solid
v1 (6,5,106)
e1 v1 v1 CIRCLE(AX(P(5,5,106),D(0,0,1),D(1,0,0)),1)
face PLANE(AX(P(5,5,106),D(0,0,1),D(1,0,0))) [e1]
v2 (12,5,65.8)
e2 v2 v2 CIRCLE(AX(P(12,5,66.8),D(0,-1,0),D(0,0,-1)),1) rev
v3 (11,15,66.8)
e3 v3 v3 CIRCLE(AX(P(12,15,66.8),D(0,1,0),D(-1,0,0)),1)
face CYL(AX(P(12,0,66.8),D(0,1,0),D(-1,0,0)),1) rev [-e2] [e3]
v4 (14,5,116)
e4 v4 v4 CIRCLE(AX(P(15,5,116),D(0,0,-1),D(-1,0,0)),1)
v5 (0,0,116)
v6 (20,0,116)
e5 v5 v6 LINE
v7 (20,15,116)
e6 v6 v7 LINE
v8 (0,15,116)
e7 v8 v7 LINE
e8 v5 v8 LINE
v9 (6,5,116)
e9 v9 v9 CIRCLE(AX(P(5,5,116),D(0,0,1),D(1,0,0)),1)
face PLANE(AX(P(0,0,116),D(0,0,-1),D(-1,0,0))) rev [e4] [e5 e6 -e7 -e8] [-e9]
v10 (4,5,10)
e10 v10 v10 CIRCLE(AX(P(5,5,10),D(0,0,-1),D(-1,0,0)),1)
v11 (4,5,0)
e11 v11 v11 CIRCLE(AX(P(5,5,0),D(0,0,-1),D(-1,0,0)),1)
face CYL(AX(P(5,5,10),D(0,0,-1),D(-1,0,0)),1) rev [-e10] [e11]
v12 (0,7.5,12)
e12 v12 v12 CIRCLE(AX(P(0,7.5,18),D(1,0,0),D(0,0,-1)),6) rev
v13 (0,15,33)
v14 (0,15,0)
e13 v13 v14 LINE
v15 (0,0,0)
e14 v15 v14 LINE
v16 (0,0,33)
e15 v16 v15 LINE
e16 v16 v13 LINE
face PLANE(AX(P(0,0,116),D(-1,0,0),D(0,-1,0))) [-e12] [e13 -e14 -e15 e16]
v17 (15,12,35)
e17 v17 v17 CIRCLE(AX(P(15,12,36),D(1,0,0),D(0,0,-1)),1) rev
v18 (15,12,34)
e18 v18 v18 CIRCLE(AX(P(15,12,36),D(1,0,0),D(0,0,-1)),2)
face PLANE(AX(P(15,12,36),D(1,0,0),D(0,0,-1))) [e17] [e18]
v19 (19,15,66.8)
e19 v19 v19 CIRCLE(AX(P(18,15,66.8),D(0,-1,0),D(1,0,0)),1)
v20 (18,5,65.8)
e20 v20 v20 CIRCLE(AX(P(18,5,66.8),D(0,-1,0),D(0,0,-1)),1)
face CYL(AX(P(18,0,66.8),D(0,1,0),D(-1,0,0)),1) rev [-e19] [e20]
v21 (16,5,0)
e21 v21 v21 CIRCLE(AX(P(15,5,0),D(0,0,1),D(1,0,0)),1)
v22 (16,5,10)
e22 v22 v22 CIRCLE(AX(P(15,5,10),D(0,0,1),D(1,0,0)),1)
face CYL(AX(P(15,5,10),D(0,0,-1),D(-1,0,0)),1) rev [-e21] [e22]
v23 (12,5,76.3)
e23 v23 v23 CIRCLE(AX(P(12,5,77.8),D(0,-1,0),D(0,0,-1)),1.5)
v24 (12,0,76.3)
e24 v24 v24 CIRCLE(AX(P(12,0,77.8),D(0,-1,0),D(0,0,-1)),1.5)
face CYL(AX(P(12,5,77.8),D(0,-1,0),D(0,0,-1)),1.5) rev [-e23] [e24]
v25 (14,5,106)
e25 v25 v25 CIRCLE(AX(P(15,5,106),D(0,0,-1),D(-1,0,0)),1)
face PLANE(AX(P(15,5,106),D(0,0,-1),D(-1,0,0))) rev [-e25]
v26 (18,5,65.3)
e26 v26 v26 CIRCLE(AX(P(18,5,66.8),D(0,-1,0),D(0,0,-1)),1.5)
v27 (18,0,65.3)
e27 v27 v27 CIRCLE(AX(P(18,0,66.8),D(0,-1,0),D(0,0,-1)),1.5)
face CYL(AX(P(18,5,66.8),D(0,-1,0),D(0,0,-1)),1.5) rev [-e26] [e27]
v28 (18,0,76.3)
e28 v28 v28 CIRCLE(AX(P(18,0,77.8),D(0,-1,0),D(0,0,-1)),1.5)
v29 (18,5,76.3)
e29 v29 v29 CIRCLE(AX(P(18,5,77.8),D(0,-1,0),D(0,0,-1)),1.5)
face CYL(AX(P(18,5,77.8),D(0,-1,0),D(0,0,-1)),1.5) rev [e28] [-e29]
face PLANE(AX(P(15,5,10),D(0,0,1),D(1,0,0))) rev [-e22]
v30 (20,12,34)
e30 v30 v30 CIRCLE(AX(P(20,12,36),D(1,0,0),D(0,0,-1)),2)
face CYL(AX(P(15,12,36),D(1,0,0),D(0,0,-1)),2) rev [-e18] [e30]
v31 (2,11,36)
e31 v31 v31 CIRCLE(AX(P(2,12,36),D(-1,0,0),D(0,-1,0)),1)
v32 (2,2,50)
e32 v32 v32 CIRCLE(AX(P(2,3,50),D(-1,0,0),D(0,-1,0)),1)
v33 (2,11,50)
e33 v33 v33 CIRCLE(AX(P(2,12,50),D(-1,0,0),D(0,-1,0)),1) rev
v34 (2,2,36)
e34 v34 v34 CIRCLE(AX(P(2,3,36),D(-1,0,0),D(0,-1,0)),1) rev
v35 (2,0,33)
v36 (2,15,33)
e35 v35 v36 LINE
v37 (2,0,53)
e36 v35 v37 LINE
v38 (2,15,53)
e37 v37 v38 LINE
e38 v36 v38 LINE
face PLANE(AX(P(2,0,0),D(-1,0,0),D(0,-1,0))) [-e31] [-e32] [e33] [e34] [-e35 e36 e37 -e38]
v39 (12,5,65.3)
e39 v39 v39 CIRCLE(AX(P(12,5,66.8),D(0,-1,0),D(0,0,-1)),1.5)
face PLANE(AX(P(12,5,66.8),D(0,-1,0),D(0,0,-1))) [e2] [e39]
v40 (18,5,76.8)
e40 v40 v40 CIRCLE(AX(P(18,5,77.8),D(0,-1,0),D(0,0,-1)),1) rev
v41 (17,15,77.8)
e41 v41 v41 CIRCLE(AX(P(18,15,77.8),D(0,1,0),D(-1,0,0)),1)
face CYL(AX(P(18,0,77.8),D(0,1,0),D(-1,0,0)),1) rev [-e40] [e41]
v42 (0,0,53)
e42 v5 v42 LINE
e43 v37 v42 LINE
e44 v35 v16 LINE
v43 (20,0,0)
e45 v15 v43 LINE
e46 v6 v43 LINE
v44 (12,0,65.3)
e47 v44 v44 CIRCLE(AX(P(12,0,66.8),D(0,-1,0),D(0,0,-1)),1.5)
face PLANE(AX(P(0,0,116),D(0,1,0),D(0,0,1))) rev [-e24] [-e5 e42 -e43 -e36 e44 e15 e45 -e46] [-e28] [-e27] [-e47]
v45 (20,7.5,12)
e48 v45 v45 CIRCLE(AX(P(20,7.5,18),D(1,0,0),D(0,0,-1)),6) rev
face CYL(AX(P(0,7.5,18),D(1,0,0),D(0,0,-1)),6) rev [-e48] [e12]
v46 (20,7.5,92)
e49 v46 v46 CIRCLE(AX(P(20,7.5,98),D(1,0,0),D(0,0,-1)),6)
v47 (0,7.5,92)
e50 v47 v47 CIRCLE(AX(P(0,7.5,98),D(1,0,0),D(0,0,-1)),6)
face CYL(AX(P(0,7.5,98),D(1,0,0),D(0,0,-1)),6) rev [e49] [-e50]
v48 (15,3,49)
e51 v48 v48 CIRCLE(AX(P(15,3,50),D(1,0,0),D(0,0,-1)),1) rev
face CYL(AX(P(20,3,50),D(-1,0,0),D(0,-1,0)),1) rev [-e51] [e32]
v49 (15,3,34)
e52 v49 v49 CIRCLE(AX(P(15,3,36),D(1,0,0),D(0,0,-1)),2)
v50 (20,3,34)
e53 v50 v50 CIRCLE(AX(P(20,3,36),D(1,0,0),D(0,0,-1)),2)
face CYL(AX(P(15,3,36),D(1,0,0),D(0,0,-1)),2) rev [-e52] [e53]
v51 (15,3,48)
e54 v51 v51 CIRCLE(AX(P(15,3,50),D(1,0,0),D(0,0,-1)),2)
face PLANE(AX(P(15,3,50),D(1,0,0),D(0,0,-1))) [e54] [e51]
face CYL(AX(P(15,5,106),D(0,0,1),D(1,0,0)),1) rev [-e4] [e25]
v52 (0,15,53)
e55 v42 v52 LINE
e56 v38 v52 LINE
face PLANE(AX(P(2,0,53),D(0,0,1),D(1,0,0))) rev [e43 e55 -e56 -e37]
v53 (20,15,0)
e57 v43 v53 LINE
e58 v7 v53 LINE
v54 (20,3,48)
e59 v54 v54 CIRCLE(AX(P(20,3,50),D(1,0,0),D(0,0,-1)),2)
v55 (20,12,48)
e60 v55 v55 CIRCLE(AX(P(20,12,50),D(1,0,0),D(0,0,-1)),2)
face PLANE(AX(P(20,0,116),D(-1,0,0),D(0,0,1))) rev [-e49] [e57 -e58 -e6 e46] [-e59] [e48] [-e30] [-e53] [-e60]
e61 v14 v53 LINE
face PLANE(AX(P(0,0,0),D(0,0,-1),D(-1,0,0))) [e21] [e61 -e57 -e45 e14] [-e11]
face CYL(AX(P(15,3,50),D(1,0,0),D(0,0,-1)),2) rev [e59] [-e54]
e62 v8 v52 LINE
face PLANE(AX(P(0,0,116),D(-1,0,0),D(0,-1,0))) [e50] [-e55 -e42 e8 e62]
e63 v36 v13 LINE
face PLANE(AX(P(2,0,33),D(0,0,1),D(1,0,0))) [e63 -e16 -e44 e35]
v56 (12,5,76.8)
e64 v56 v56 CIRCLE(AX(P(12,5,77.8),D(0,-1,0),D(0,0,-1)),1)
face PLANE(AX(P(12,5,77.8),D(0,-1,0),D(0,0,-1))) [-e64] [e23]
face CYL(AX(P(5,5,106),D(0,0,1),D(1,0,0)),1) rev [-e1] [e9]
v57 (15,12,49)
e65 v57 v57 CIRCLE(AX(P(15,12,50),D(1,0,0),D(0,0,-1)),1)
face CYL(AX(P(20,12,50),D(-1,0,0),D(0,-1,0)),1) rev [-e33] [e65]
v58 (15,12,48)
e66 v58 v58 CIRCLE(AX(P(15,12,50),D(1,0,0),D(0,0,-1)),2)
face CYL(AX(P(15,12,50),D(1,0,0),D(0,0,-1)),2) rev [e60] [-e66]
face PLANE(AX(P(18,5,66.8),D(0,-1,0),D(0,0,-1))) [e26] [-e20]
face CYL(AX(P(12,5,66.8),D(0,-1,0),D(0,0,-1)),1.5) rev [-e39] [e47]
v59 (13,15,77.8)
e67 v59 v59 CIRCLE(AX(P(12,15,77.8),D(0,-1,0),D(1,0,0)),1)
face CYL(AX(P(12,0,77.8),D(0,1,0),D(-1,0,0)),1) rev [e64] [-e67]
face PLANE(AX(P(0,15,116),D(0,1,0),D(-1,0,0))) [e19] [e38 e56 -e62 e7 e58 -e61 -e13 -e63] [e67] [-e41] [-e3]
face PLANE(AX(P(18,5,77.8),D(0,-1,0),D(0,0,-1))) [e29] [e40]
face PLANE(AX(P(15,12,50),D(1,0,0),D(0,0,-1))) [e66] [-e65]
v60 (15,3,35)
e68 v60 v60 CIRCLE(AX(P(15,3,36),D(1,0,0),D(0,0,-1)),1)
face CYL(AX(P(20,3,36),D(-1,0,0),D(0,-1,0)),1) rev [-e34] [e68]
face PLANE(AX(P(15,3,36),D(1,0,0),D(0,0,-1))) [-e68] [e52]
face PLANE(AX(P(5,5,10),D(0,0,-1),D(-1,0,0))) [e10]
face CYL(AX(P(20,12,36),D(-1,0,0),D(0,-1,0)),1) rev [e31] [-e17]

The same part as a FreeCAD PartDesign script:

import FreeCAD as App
import Part
import Sketcher

V = App.Vector
Q = App.Units.Quantity

doc = App.newDocument("Part")
body = doc.addObject("PartDesign::Body", "Body")

# Sketch on XY plane
sketch1 = body.newObject("Sketcher::SketchObject", "Sketch")
sketch1.AttachmentSupport = (doc.getObject("XY_Plane"), [""])
sketch1.MapMode = "FlatFace"
sketch1.addGeometry([
    Part.LineSegment(V(0, 15, 0), V(0, 0, 0)),
    Part.LineSegment(V(0, 0, 0), V(20, 0, 0)),
    Part.LineSegment(V(20, 0, 0), V(20, 15, 0)),
    Part.LineSegment(V(20, 15, 0), V(0, 15, 0)),
], False)
sketch1.addConstraint([
    Sketcher.Constraint("Coincident", 0, 2, 1, 1),
    Sketcher.Constraint("Coincident", 1, 2, 2, 1),
    Sketcher.Constraint("Coincident", 2, 2, 3, 1),
    Sketcher.Constraint("Coincident", 3, 2, 0, 1),
    Sketcher.Constraint("Vertical", 0),
    Sketcher.Constraint("Horizontal", 1),
    Sketcher.Constraint("Vertical", 2),
    Sketcher.Constraint("Horizontal", 3),
    Sketcher.Constraint("Coincident", 0, 2, -1, 1),
    Sketcher.Constraint("DistanceX", 1, 1, 1, 2, Q("20 mm")),
    Sketcher.Constraint("DistanceY", 0, 2, 0, 1, Q("15 mm")),
])
pad1 = body.newObject("PartDesign::Pad", "Pad")
pad1.Profile = sketch1
pad1.Length = 116

# Sketch on XY plane
sketch2 = body.newObject("Sketcher::SketchObject", "Sketch001")
sketch2.AttachmentSupport = (doc.getObject("XY_Plane"), [""])
sketch2.MapMode = "FlatFace"
sketch2.addGeometry([
    Part.Circle(V(15, 5, 0), V(0, 0, 1), 1),
    Part.Circle(V(5, 5, 0), V(0, 0, 1), 1),
], False)
sketch2.addConstraint([
    Sketcher.Constraint("Equal", 0, 1),
    Sketcher.Constraint("Horizontal", 0, 3, 1, 3),
    Sketcher.Constraint("Diameter", 0, Q("2 mm")),
    Sketcher.Constraint("DistanceX", -1, 1, 0, 3, Q("15 mm")),
    Sketcher.Constraint("DistanceY", -1, 1, 0, 3, Q("5 mm")),
    Sketcher.Constraint("DistanceX", -1, 1, 1, 3, Q("5 mm")),
])
pocket1 = body.newObject("PartDesign::Pocket", "Pocket")
pocket1.Profile = sketch2
pocket1.Length = 10
pocket1.Reversed = True

# Sketch on XY plane
sketch3 = body.newObject("Sketcher::SketchObject", "Sketch002")
sketch3.AttachmentSupport = (doc.getObject("XY_Plane"), [""])
sketch3.MapMode = "FlatFace"
sketch3.AttachmentOffset = App.Placement(V(0, 0, 116), App.Rotation())
sketch3.addGeometry([
    Part.Circle(V(5, 5, 0), V(0, 0, 1), 1),
    Part.Circle(V(15, 5, 0), V(0, 0, 1), 1),
], False)
sketch3.addConstraint([
    Sketcher.Constraint("Equal", 0, 1),
    Sketcher.Constraint("Horizontal", 0, 3, 1, 3),
    Sketcher.Constraint("Diameter", 0, Q("2 mm")),
    Sketcher.Constraint("DistanceX", -1, 1, 0, 3, Q("5 mm")),
    Sketcher.Constraint("DistanceY", -1, 1, 0, 3, Q("5 mm")),
    Sketcher.Constraint("DistanceX", -1, 1, 1, 3, Q("15 mm")),
])
pocket2 = body.newObject("PartDesign::Pocket", "Pocket001")
pocket2.Profile = sketch3
pocket2.Length = 10

# Sketch on YZ plane
sketch4 = body.newObject("Sketcher::SketchObject", "Sketch003")
sketch4.AttachmentSupport = (doc.getObject("YZ_Plane"), [""])
sketch4.MapMode = "FlatFace"
sketch4.AttachmentOffset = App.Placement(V(0, 0, 20), App.Rotation())
sketch4.addGeometry([
    Part.Circle(V(7.5, 98, 0), V(0, 0, 1), 2.5),
    Part.Circle(V(7.5, 18, 0), V(0, 0, 1), 2.5),
], False)
sketch4.addConstraint([
    Sketcher.Constraint("Equal", 0, 1),
    Sketcher.Constraint("Vertical", 0, 3, 1, 3),
    Sketcher.Constraint("Diameter", 0, Q("5 mm")),
    Sketcher.Constraint("DistanceY", -1, 1, 0, 3, Q("98 mm")),
    Sketcher.Constraint("DistanceY", -1, 1, 1, 3, Q("18 mm")),
    Sketcher.Constraint("DistanceX", -1, 1, 0, 3, Q("7.5 mm")),
])
pocket3 = body.newObject("PartDesign::Pocket", "Pocket002")
pocket3.Profile = sketch4
pocket3.Type = "ThroughAll"

# Sketch on YZ plane
sketch5 = body.newObject("Sketcher::SketchObject", "Sketch004")
sketch5.AttachmentSupport = (doc.getObject("YZ_Plane"), [""])
sketch5.MapMode = "FlatFace"
sketch5.AttachmentOffset = App.Placement(V(0, 0, 20), App.Rotation())
sketch5.addGeometry([
    Part.Circle(V(8, 98, 0), V(0, 0, 1), 6),
    Part.Circle(V(8, 18, 0), V(0, 0, 1), 6),
], False)
sketch5.addConstraint([
    Sketcher.Constraint("Equal", 0, 1),
    Sketcher.Constraint("Vertical", 0, 3, 1, 3),
    Sketcher.Constraint("Diameter", 0, Q("12 mm")),
    Sketcher.Constraint("DistanceY", -1, 1, 0, 3, Q("98 mm")),
    Sketcher.Constraint("DistanceY", -1, 1, 1, 3, Q("18 mm")),
    Sketcher.Constraint("DistanceX", -1, 1, 0, 3, Q("7.5 mm")),
])
pocket4 = body.newObject("PartDesign::Pocket", "Pocket003")
pocket4.Profile = sketch5
pocket4.Type = "ThroughAll"

# Sketch on XZ plane
sketch6 = body.newObject("Sketcher::SketchObject", "Sketch005")
sketch6.AttachmentSupport = (doc.getObject("XZ_Plane"), [""])
sketch6.MapMode = "FlatFace"
sketch6.AttachmentOffset = App.Placement(V(0, 0, -15), App.Rotation())
sketch6.addGeometry([
    Part.Circle(V(12, 66.8, 0), V(0, 0, 1), 1),
    Part.Circle(V(18, 66.8, 0), V(0, 0, 1), 1),
    Part.Circle(V(18, 77.8, 0), V(0, 0, 1), 1),
    Part.Circle(V(12, 77.8, 0), V(0, 0, 1), 1),
], False)
sketch6.addConstraint([
    Sketcher.Constraint("Equal", 0, 1),
    Sketcher.Constraint("Equal", 1, 2),
    Sketcher.Constraint("Equal", 2, 3),
    Sketcher.Constraint("Horizontal", 0, 3, 1, 3),
    Sketcher.Constraint("Horizontal", 2, 3, 3, 3),
    Sketcher.Constraint("Vertical", 1, 3, 2, 3),
    Sketcher.Constraint("Vertical", 0, 3, 3, 3),
    Sketcher.Constraint("Diameter", 0, Q("2 mm")),
    Sketcher.Constraint("DistanceX", -1, 1, 0, 3, Q("12 mm")),
    Sketcher.Constraint("DistanceX", -1, 1, 1, 3, Q("18 mm")),
    Sketcher.Constraint("DistanceY", 1, 3, 2, 3, Q("11 mm")),
    Sketcher.Constraint("DistanceY", -1, 1, 0, 3, Q("66.8 mm")),
])
pocket5 = body.newObject("PartDesign::Pocket", "Pocket004")
pocket5.Profile = sketch6
pocket5.Type = "ThroughAll"
pocket5.Reversed = True

# Sketch on XZ plane
sketch7 = body.newObject("Sketcher::SketchObject", "Sketch006")
sketch7.AttachmentSupport = (doc.getObject("XZ_Plane"), [""])
sketch7.MapMode = "FlatFace"
sketch7.addGeometry([
    Part.Circle(V(18, 66.8, 0), V(0, 0, 1), 1.5),
    Part.Circle(V(18, 77.8, 0), V(0, 0, 1), 1.5),
    Part.Circle(V(12, 77.8, 0), V(0, 0, 1), 1.5),
    Part.Circle(V(12, 66.8, 0), V(0, 0, 1), 1.5),
], False)
sketch7.addConstraint([
    Sketcher.Constraint("Equal", 0, 1),
    Sketcher.Constraint("Equal", 1, 2),
    Sketcher.Constraint("Equal", 2, 3),
    Sketcher.Constraint("Horizontal", 1, 3, 2, 3),
    Sketcher.Constraint("Horizontal", 0, 3, 3, 3),
    Sketcher.Constraint("Vertical", 0, 3, 1, 3),
    Sketcher.Constraint("Vertical", 2, 3, 3, 3),
    Sketcher.Constraint("Diameter", 0, Q("3 mm")),
    Sketcher.Constraint("DistanceX", -1, 1, 0, 3, Q("18 mm")),
    Sketcher.Constraint("DistanceX", -1, 1, 2, 3, Q("12 mm")),
    Sketcher.Constraint("DistanceY", 0, 3, 1, 3, Q("11 mm")),
    Sketcher.Constraint("DistanceY", -1, 1, 0, 3, Q("66.8 mm")),
])
pocket6 = body.newObject("PartDesign::Pocket", "Pocket005")
pocket6.Profile = sketch7
pocket6.Length = 5

# Sketch on YZ plane
sketch8 = body.newObject("Sketcher::SketchObject", "Sketch007")
sketch8.AttachmentSupport = (doc.getObject("YZ_Plane"), [""])
sketch8.MapMode = "FlatFace"
sketch8.addGeometry([
    Part.Circle(V(12, 36, 0), V(0, 0, 1), 1),
    Part.Circle(V(12, 50, 0), V(0, 0, 1), 1),
    Part.Circle(V(3, 50, 0), V(0, 0, 1), 1),
    Part.Circle(V(3, 36, 0), V(0, 0, 1), 1),
], False)
sketch8.addConstraint([
    Sketcher.Constraint("Equal", 0, 1),
    Sketcher.Constraint("Equal", 1, 2),
    Sketcher.Constraint("Equal", 2, 3),
    Sketcher.Constraint("Horizontal", 1, 3, 2, 3),
    Sketcher.Constraint("Horizontal", 0, 3, 3, 3),
    Sketcher.Constraint("Vertical", 0, 3, 1, 3),
    Sketcher.Constraint("Vertical", 2, 3, 3, 3),
    Sketcher.Constraint("Diameter", 0, Q("2 mm")),
    Sketcher.Constraint("DistanceX", -1, 1, 0, 3, Q("12 mm")),
    Sketcher.Constraint("DistanceY", -1, 1, 0, 3, Q("36 mm")),
    Sketcher.Constraint("DistanceY", -1, 1, 1, 3, Q("50 mm")),
    Sketcher.Constraint("DistanceX", -1, 1, 2, 3, Q("3 mm")),
])
pocket7 = body.newObject("PartDesign::Pocket", "Pocket006")
pocket7.Profile = sketch8
pocket7.Type = "ThroughAll"
pocket7.Reversed = True

# Sketch on YZ plane
sketch9 = body.newObject("Sketcher::SketchObject", "Sketch008")
sketch9.AttachmentSupport = (doc.getObject("YZ_Plane"), [""])
sketch9.MapMode = "FlatFace"
sketch9.AttachmentOffset = App.Placement(V(0, 0, 20), App.Rotation())
sketch9.addGeometry([
    Part.Circle(V(12, 36, 0), V(0, 0, 1), 2),
    Part.Circle(V(3, 36, 0), V(0, 0, 1), 2),
    Part.Circle(V(3, 50, 0), V(0, 0, 1), 2),
    Part.Circle(V(12, 50, 0), V(0, 0, 1), 2),
], False)
sketch9.addConstraint([
    Sketcher.Constraint("Equal", 0, 1),
    Sketcher.Constraint("Equal", 1, 2),
    Sketcher.Constraint("Equal", 2, 3),
    Sketcher.Constraint("Horizontal", 0, 3, 1, 3),
    Sketcher.Constraint("Horizontal", 2, 3, 3, 3),
    Sketcher.Constraint("Vertical", 1, 3, 2, 3),
    Sketcher.Constraint("Vertical", 0, 3, 3, 3),
    Sketcher.Constraint("Diameter", 0, Q("4 mm")),
    Sketcher.Constraint("DistanceX", -1, 1, 0, 3, Q("12 mm")),
    Sketcher.Constraint("DistanceY", -1, 1, 0, 3, Q("36 mm")),
    Sketcher.Constraint("DistanceX", -1, 1, 1, 3, Q("3 mm")),
    Sketcher.Constraint("DistanceY", -1, 1, 2, 3, Q("50 mm")),
])
pocket8 = body.newObject("PartDesign::Pocket", "Pocket007")
pocket8.Profile = sketch9
pocket8.Length = 5

# Sketch on YZ plane
sketch10 = body.newObject("Sketcher::SketchObject", "Sketch009")
sketch10.AttachmentSupport = (doc.getObject("YZ_Plane"), [""])
sketch10.MapMode = "FlatFace"
sketch10.addGeometry([
    Part.LineSegment(V(15, 33, 0), V(0, 33, 0)),  # 0
    Part.LineSegment(V(0, 33, 0), V(0, 53, 0)),  # 1
    Part.LineSegment(V(0, 53, 0), V(15, 53, 0)),  # 2
    Part.LineSegment(V(15, 53, 0), V(15, 33, 0)),  # 3
    Part.Circle(V(3, 36, 0), V(0, 0, 1), 1),  # 4
    Part.Circle(V(3, 50, 0), V(0, 0, 1), 1),  # 5
    Part.Circle(V(12, 36, 0), V(0, 0, 1), 1),  # 6
    Part.Circle(V(12, 50, 0), V(0, 0, 1), 1),  # 7
], False)
sketch10.addConstraint([
    Sketcher.Constraint("Coincident", 0, 2, 1, 1),
    Sketcher.Constraint("Coincident", 1, 2, 2, 1),
    Sketcher.Constraint("Coincident", 2, 2, 3, 1),
    Sketcher.Constraint("Coincident", 3, 2, 0, 1),
    Sketcher.Constraint("Horizontal", 0),
    Sketcher.Constraint("Vertical", 1),
    Sketcher.Constraint("Horizontal", 2),
    Sketcher.Constraint("Vertical", 3),
    Sketcher.Constraint("Equal", 4, 5),
    Sketcher.Constraint("Equal", 5, 6),
    Sketcher.Constraint("Equal", 6, 7),
    Sketcher.Constraint("PointOnObject", 0, 2, -2),
    Sketcher.Constraint("Horizontal", 4, 3, 6, 3),
    Sketcher.Constraint("Horizontal", 5, 3, 7, 3),
    Sketcher.Constraint("Vertical", 4, 3, 5, 3),
    Sketcher.Constraint("Vertical", 6, 3, 7, 3),
    Sketcher.Constraint("Diameter", 4, Q("2 mm")),
    Sketcher.Constraint("DistanceX", 0, 2, 0, 1, Q("15 mm")),
    Sketcher.Constraint("DistanceY", 1, 1, 1, 2, Q("20 mm")),
    Sketcher.Constraint("DistanceX", -1, 1, 4, 3, Q("3 mm")),
    Sketcher.Constraint("DistanceY", -1, 1, 4, 3, Q("36 mm")),
    Sketcher.Constraint("DistanceY", -1, 1, 5, 3, Q("50 mm")),
    Sketcher.Constraint("DistanceX", -1, 1, 6, 3, Q("12 mm")),
    Sketcher.Constraint("DistanceY", -1, 1, 0, 2, Q("33 mm")),
])
pocket9 = body.newObject("PartDesign::Pocket", "Pocket008")
pocket9.Profile = sketch10
pocket9.Length = 2
pocket9.Reversed = True

doc.recompute()
